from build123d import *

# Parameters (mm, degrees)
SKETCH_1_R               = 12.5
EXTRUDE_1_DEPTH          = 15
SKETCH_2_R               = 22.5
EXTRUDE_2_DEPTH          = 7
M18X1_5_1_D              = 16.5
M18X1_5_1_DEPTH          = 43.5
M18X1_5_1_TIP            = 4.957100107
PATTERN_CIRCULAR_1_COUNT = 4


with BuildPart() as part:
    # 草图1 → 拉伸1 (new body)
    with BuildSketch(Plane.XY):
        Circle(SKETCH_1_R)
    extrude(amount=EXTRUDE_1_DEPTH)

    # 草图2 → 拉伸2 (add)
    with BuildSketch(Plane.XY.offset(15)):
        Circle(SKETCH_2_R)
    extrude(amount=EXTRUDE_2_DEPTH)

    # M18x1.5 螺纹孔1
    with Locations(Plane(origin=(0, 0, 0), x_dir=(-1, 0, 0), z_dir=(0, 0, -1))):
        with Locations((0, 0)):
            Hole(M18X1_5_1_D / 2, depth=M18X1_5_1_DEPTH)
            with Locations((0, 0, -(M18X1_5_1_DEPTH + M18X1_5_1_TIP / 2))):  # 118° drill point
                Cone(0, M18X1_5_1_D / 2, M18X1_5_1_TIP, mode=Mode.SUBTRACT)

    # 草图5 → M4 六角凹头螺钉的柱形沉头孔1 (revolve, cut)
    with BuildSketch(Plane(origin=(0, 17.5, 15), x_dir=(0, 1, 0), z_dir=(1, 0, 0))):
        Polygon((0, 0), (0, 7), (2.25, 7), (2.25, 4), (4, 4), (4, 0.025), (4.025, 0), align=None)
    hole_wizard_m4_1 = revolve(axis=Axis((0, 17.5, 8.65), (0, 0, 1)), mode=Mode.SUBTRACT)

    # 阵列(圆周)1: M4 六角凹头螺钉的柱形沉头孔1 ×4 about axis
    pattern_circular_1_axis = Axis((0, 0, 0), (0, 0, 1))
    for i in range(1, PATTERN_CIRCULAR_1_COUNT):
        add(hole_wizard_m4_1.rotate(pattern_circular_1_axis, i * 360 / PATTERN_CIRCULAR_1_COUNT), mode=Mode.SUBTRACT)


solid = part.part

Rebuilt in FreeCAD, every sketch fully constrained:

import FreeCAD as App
import Part
import Sketcher
from FreeCAD import Vector
Q = App.Units.Quantity


def add_polygon(sketch, points):
    """Adds a closed chain of lines whose ends are joined by coincident constraints."""
    first, n = sketch.GeometryCount, len(points)
    for a, b in zip(points, points[1:] + points[:1]):
        sketch.addGeometry(Part.LineSegment(App.Vector(*a, 0), App.Vector(*b, 0)), False)
    for i in range(n):
        sketch.addConstraint(Sketcher.Constraint("Coincident", first + i, 2, first + (i + 1) % n, 1))

doc = App.newDocument("Part")
params = doc.addObject("Spreadsheet::Sheet", "Params")
for row, (alias, value) in enumerate([
    ("sketch1_diameter", "25 mm"),
    ("pad1_length", "15 mm"),
    ("sketch2_diameter", "45 mm"),
    ("pad2_length", "7 mm"),
    ("sketch3_diameter", "16.5 mm"),
    ("hole_diameter", "16.5 mm"),
    ("hole_depth", "43.5 mm"),
    ("sketch4_height", "7 mm"),
    ("sketch4_height2", "3 mm"),
    ("sketch4_width", "1.75 mm"),
    ("groove_angle", "360 deg"),
], start=1):
    params.set(f"A{row}", alias)
    params.set(f"B{row}", "=" + value)
    params.setAlias(f"B{row}", alias)

body = doc.addObject("PartDesign::Body", "Body")

sketch1 = body.newObject("Sketcher::SketchObject", "Sketch")
sketch1.AttachmentSupport = (doc.getObject("XY_Plane"), [""])
sketch1.MapMode = "FlatFace"
sketch1.addGeometry(Part.Circle(Vector(0, 0, 0), Vector(0, 0, 1), 12), False)
sketch1.addConstraint([
    Sketcher.Constraint("Coincident", 0, 3, -1, 1),
    Sketcher.Constraint("Diameter", 0, Q("25 mm")),
])
sketch1.setExpression("Constraints[1]", "Params.sketch1_diameter")
pad1 = body.newObject("PartDesign::Pad", "Pad")
pad1.Profile = sketch1
pad1.setExpression("Length", "Params.pad1_length")

sketch2 = body.newObject("Sketcher::SketchObject", "Sketch001")
sketch2.AttachmentSupport = (doc.getObject("XY_Plane"), [""])
sketch2.MapMode = "FlatFace"
sketch2.AttachmentOffset = App.Placement(Vector(0, 0, 15), App.Rotation())
sketch2.addGeometry(Part.Circle(Vector(0, 0, 0), Vector(0, 0, 1), 22), False)
sketch2.addConstraint([
    Sketcher.Constraint("Coincident", 0, 3, -1, 1),
    Sketcher.Constraint("Diameter", 0, Q("45 mm")),
])
sketch2.setExpression("Constraints[1]", "Params.sketch2_diameter")
pad2 = body.newObject("PartDesign::Pad", "Pad001")
pad2.Profile = sketch2
pad2.setExpression("Length", "Params.pad2_length")

sketch3 = body.newObject("Sketcher::SketchObject", "Sketch002")
sketch3.AttachmentSupport = (doc.getObject("XY_Plane"), [""])
sketch3.MapMode = "FlatFace"
sketch3.addGeometry(Part.Circle(Vector(0, 0, 0), Vector(0, 0, 1), 8), False)
sketch3.addConstraint([
    Sketcher.Constraint("Coincident", 0, 3, -1, 1),
    Sketcher.Constraint("Diameter", 0, Q("16.5 mm")),
])
sketch3.setExpression("Constraints[1]", "Params.sketch3_diameter")
doc.recompute()
hole = body.newObject("PartDesign::Hole", "Hole")
hole.Profile = sketch3
hole.ThreadType = "None"
hole.setExpression("Diameter", "Params.hole_diameter")
hole.DepthType = "Dimension"
hole.setExpression("Depth", "Params.hole_depth")
hole.DrillPoint = "Angled"
hole.DrillPointAngle = 118
hole.Reversed = True

sketch4 = body.newObject("Sketcher::SketchObject", "Sketch003")
sketch4.AttachmentSupport = (doc.getObject("YZ_Plane"), [""])
sketch4.MapMode = "FlatFace"
add_polygon(sketch4, [(17.5, 22), (17.5, 15), (21.525, 15), (21.5, 15.025), (21.5, 19), (19.75, 19), (19.75, 22)])
sketch4.addGeometry(Part.LineSegment(Vector(17.5, 15, 0), Vector(17.5, 22, 0)), True)
sketch4.addConstraint([
    Sketcher.Constraint("Vertical", 0),
    Sketcher.Constraint("Horizontal", 1),
    Sketcher.Constraint("Vertical", 3),
    Sketcher.Constraint("Horizontal", 4),
    Sketcher.Constraint("Vertical", 5),
    Sketcher.Constraint("Horizontal", 6),
    Sketcher.Constraint("Vertical", 7),
    Sketcher.Constraint("Coincident", 7, 1, 0, 2),
    Sketcher.Constraint("Horizontal", 5, 2, 7, 2),
    Sketcher.Constraint("DistanceY", 0, 2, 0, 1, Q("7 mm")),
    Sketcher.Constraint("DistanceY", 5, 1, 5, 2, Q("3 mm")),
    Sketcher.Constraint("Angle", 2, Q("135 deg")),
    Sketcher.Constraint("DistanceY", -1, 1, 0, 2, Q("15 mm")),
    Sketcher.Constraint("DistanceX", 0, 2, 2, 2, Q("4 mm")),
    Sketcher.Constraint("DistanceX", 4, 2, 4, 1, Q("1.75 mm")),
    Sketcher.Constraint("DistanceX", -1, 1, 0, 2, Q("17.5 mm")),
    Sketcher.Constraint("DistanceX", 1, 1, 1, 2, Q("4.025 mm")),
])
sketch4.setExpression("Constraints[16]", "Params.sketch4_height")
sketch4.setExpression("Constraints[17]", "Params.sketch4_height2")
sketch4.setExpression("Constraints[21]", "Params.sketch4_width")
groove = body.newObject("PartDesign::Groove", "Groove")
groove.Profile = sketch4
groove.ReferenceAxis = (sketch4, ["Axis0"])
groove.setExpression("Angle", "Params.groove_angle")
doc.recompute()

polarpattern = body.newObject("PartDesign::PolarPattern", "PolarPattern")
polarpattern.Originals = [groove]
polarpattern.Axis = (doc.getObject("Z_Axis"), [""])
polarpattern.Angle = 360
polarpattern.Occurrences = 4
body.Tip = polarpattern

doc.recompute()
